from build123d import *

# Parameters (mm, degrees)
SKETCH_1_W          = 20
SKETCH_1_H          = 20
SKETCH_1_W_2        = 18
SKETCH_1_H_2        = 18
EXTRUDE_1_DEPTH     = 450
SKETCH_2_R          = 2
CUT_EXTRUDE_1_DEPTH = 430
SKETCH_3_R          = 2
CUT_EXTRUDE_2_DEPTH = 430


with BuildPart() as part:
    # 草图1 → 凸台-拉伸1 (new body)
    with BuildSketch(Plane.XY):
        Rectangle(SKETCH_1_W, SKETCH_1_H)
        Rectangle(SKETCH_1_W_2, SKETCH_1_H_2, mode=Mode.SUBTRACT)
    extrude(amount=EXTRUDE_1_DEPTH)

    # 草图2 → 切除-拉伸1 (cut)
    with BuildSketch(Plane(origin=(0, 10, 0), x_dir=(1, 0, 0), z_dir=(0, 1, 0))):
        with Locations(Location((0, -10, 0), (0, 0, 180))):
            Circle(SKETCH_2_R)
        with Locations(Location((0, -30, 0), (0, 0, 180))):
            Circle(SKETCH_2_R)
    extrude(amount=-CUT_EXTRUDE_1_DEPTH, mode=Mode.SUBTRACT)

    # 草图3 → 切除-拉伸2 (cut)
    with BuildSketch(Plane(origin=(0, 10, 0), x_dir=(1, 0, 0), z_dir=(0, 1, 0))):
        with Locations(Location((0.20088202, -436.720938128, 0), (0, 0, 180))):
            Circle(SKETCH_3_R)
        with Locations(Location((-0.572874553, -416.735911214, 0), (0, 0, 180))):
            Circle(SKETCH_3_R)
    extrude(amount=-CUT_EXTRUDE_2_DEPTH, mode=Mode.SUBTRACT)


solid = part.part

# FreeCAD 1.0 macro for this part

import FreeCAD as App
import Part
import Sketcher


def add_polygon(sketch, points):
    """Adds a closed chain of lines whose ends are joined by coincident constraints."""
    first, n = sketch.GeometryCount, len(points)
    for a, b in zip(points, points[1:] + points[:1]):
        sketch.addGeometry(Part.LineSegment(App.Vector(*a, 0), App.Vector(*b, 0)), False)
    for i in range(n):
        sketch.addConstraint(Sketcher.Constraint("Coincident", first + i, 2, first + (i + 1) % n, 1))

doc = App.newDocument("Part")
body = doc.addObject("PartDesign::Body", "Body")

# Sketch on XY plane
sketch1 = body.newObject("Sketcher::SketchObject", "Sketch")
sketch1.AttachmentSupport = (doc.getObject("XY_Plane"), [""])
sketch1.MapMode = "FlatFace"
add_polygon(sketch1, [(-10, 10), (-10, -10), (10, -10), (10, 10)])  # lines 0-3
add_polygon(sketch1, [(9, -9), (-9, -9), (-9, 9), (9, 9)])  # lines 4-7
sketch1.addConstraint(Sketcher.Constraint("Vertical", 0))
sketch1.addConstraint(Sketcher.Constraint("Horizontal", 1))
sketch1.addConstraint(Sketcher.Constraint("Vertical", 2))
sketch1.addConstraint(Sketcher.Constraint("Horizontal", 3))
sketch1.addConstraint(Sketcher.Constraint("Horizontal", 4))
sketch1.addConstraint(Sketcher.Constraint("Vertical", 5))
sketch1.addConstraint(Sketcher.Constraint("Horizontal", 6))
sketch1.addConstraint(Sketcher.Constraint("Vertical", 7))
sketch1.addConstraint(Sketcher.Constraint("Symmetric", 0, 2, 2, 2, -1, 1))
sketch1.addConstraint(Sketcher.Constraint("Symmetric", 4, 2, 6, 2, -1, 1))
sketch1.addConstraint(Sketcher.Constraint("Equal", 3, 0))
sketch1.addConstraint(Sketcher.Constraint("Equal", 6, 5))
sketch1.addConstraint(Sketcher.Constraint("DistanceX", 1, 1, 1, 2, 20.0))
sketch1.addConstraint(Sketcher.Constraint("DistanceX", 4, 2, 4, 1, 18.0))
pad1 = body.newObject("PartDesign::Pad", "Pad")
pad1.Profile = sketch1
pad1.Length = 450

# Sketch on XZ plane
sketch2 = body.newObject("Sketcher::SketchObject", "Sketch001")
sketch2.AttachmentSupport = (doc.getObject("XZ_Plane"), [""])
sketch2.MapMode = "FlatFace"
sketch2.AttachmentOffset = App.Placement(App.Vector(0, 0, -10), App.Rotation())
sketch2.addGeometry(Part.Circle(App.Vector(0, 10, 0), App.Vector(0, 0, 1), 2), False)
sketch2.addGeometry(Part.Circle(App.Vector(0, 30, 0), App.Vector(0, 0, 1), 2), False)
sketch2.addConstraint(Sketcher.Constraint("Equal", 0, 1))
sketch2.addConstraint(Sketcher.Constraint("PointOnObject", 0, 3, -2))
sketch2.addConstraint(Sketcher.Constraint("PointOnObject", 1, 3, -2))
sketch2.addConstraint(Sketcher.Constraint("Diameter", 0, 4.0))
sketch2.addConstraint(Sketcher.Constraint("DistanceY", -1, 1, 0, 3, 10.0))
sketch2.addConstraint(Sketcher.Constraint("DistanceY", -1, 1, 1, 3, 30.0))
pocket1 = body.newObject("PartDesign::Pocket", "Pocket")
pocket1.Profile = sketch2
pocket1.Length = 430
pocket1.Reversed = True

# Sketch on XZ plane
sketch3 = body.newObject("Sketcher::SketchObject", "Sketch002")
sketch3.AttachmentSupport = (doc.getObject("XZ_Plane"), [""])
sketch3.MapMode = "FlatFace"
sketch3.AttachmentOffset = App.Placement(App.Vector(0, 0, -10), App.Rotation())
sketch3.addGeometry(Part.Circle(App.Vector(0.2, 436.7, 0), App.Vector(0, 0, 1), 2), False)
sketch3.addGeometry(Part.Circle(App.Vector(-0.6, 416.7, 0), App.Vector(0, 0, 1), 2), False)
sketch3.addConstraint(Sketcher.Constraint("Equal", 0, 1))
sketch3.addConstraint(Sketcher.Constraint("Diameter", 0, 4.0))
sketch3.addConstraint(Sketcher.Constraint("DistanceY", -1, 1, 0, 3, 436.720938))
sketch3.addConstraint(Sketcher.Constraint("DistanceY", -1, 1, 1, 3, 416.735911))
sketch3.addConstraint(Sketcher.Constraint("DistanceX", -1, 1, 0, 3, 0.200882))
sketch3.addConstraint(Sketcher.Constraint("DistanceX", 1, 3, -1, 1, 0.572875))
pocket2 = body.newObject("PartDesign::Pocket", "Pocket001")
pocket2.Profile = sketch3
pocket2.Length = 430
pocket2.Reversed = True

doc.recompute()
